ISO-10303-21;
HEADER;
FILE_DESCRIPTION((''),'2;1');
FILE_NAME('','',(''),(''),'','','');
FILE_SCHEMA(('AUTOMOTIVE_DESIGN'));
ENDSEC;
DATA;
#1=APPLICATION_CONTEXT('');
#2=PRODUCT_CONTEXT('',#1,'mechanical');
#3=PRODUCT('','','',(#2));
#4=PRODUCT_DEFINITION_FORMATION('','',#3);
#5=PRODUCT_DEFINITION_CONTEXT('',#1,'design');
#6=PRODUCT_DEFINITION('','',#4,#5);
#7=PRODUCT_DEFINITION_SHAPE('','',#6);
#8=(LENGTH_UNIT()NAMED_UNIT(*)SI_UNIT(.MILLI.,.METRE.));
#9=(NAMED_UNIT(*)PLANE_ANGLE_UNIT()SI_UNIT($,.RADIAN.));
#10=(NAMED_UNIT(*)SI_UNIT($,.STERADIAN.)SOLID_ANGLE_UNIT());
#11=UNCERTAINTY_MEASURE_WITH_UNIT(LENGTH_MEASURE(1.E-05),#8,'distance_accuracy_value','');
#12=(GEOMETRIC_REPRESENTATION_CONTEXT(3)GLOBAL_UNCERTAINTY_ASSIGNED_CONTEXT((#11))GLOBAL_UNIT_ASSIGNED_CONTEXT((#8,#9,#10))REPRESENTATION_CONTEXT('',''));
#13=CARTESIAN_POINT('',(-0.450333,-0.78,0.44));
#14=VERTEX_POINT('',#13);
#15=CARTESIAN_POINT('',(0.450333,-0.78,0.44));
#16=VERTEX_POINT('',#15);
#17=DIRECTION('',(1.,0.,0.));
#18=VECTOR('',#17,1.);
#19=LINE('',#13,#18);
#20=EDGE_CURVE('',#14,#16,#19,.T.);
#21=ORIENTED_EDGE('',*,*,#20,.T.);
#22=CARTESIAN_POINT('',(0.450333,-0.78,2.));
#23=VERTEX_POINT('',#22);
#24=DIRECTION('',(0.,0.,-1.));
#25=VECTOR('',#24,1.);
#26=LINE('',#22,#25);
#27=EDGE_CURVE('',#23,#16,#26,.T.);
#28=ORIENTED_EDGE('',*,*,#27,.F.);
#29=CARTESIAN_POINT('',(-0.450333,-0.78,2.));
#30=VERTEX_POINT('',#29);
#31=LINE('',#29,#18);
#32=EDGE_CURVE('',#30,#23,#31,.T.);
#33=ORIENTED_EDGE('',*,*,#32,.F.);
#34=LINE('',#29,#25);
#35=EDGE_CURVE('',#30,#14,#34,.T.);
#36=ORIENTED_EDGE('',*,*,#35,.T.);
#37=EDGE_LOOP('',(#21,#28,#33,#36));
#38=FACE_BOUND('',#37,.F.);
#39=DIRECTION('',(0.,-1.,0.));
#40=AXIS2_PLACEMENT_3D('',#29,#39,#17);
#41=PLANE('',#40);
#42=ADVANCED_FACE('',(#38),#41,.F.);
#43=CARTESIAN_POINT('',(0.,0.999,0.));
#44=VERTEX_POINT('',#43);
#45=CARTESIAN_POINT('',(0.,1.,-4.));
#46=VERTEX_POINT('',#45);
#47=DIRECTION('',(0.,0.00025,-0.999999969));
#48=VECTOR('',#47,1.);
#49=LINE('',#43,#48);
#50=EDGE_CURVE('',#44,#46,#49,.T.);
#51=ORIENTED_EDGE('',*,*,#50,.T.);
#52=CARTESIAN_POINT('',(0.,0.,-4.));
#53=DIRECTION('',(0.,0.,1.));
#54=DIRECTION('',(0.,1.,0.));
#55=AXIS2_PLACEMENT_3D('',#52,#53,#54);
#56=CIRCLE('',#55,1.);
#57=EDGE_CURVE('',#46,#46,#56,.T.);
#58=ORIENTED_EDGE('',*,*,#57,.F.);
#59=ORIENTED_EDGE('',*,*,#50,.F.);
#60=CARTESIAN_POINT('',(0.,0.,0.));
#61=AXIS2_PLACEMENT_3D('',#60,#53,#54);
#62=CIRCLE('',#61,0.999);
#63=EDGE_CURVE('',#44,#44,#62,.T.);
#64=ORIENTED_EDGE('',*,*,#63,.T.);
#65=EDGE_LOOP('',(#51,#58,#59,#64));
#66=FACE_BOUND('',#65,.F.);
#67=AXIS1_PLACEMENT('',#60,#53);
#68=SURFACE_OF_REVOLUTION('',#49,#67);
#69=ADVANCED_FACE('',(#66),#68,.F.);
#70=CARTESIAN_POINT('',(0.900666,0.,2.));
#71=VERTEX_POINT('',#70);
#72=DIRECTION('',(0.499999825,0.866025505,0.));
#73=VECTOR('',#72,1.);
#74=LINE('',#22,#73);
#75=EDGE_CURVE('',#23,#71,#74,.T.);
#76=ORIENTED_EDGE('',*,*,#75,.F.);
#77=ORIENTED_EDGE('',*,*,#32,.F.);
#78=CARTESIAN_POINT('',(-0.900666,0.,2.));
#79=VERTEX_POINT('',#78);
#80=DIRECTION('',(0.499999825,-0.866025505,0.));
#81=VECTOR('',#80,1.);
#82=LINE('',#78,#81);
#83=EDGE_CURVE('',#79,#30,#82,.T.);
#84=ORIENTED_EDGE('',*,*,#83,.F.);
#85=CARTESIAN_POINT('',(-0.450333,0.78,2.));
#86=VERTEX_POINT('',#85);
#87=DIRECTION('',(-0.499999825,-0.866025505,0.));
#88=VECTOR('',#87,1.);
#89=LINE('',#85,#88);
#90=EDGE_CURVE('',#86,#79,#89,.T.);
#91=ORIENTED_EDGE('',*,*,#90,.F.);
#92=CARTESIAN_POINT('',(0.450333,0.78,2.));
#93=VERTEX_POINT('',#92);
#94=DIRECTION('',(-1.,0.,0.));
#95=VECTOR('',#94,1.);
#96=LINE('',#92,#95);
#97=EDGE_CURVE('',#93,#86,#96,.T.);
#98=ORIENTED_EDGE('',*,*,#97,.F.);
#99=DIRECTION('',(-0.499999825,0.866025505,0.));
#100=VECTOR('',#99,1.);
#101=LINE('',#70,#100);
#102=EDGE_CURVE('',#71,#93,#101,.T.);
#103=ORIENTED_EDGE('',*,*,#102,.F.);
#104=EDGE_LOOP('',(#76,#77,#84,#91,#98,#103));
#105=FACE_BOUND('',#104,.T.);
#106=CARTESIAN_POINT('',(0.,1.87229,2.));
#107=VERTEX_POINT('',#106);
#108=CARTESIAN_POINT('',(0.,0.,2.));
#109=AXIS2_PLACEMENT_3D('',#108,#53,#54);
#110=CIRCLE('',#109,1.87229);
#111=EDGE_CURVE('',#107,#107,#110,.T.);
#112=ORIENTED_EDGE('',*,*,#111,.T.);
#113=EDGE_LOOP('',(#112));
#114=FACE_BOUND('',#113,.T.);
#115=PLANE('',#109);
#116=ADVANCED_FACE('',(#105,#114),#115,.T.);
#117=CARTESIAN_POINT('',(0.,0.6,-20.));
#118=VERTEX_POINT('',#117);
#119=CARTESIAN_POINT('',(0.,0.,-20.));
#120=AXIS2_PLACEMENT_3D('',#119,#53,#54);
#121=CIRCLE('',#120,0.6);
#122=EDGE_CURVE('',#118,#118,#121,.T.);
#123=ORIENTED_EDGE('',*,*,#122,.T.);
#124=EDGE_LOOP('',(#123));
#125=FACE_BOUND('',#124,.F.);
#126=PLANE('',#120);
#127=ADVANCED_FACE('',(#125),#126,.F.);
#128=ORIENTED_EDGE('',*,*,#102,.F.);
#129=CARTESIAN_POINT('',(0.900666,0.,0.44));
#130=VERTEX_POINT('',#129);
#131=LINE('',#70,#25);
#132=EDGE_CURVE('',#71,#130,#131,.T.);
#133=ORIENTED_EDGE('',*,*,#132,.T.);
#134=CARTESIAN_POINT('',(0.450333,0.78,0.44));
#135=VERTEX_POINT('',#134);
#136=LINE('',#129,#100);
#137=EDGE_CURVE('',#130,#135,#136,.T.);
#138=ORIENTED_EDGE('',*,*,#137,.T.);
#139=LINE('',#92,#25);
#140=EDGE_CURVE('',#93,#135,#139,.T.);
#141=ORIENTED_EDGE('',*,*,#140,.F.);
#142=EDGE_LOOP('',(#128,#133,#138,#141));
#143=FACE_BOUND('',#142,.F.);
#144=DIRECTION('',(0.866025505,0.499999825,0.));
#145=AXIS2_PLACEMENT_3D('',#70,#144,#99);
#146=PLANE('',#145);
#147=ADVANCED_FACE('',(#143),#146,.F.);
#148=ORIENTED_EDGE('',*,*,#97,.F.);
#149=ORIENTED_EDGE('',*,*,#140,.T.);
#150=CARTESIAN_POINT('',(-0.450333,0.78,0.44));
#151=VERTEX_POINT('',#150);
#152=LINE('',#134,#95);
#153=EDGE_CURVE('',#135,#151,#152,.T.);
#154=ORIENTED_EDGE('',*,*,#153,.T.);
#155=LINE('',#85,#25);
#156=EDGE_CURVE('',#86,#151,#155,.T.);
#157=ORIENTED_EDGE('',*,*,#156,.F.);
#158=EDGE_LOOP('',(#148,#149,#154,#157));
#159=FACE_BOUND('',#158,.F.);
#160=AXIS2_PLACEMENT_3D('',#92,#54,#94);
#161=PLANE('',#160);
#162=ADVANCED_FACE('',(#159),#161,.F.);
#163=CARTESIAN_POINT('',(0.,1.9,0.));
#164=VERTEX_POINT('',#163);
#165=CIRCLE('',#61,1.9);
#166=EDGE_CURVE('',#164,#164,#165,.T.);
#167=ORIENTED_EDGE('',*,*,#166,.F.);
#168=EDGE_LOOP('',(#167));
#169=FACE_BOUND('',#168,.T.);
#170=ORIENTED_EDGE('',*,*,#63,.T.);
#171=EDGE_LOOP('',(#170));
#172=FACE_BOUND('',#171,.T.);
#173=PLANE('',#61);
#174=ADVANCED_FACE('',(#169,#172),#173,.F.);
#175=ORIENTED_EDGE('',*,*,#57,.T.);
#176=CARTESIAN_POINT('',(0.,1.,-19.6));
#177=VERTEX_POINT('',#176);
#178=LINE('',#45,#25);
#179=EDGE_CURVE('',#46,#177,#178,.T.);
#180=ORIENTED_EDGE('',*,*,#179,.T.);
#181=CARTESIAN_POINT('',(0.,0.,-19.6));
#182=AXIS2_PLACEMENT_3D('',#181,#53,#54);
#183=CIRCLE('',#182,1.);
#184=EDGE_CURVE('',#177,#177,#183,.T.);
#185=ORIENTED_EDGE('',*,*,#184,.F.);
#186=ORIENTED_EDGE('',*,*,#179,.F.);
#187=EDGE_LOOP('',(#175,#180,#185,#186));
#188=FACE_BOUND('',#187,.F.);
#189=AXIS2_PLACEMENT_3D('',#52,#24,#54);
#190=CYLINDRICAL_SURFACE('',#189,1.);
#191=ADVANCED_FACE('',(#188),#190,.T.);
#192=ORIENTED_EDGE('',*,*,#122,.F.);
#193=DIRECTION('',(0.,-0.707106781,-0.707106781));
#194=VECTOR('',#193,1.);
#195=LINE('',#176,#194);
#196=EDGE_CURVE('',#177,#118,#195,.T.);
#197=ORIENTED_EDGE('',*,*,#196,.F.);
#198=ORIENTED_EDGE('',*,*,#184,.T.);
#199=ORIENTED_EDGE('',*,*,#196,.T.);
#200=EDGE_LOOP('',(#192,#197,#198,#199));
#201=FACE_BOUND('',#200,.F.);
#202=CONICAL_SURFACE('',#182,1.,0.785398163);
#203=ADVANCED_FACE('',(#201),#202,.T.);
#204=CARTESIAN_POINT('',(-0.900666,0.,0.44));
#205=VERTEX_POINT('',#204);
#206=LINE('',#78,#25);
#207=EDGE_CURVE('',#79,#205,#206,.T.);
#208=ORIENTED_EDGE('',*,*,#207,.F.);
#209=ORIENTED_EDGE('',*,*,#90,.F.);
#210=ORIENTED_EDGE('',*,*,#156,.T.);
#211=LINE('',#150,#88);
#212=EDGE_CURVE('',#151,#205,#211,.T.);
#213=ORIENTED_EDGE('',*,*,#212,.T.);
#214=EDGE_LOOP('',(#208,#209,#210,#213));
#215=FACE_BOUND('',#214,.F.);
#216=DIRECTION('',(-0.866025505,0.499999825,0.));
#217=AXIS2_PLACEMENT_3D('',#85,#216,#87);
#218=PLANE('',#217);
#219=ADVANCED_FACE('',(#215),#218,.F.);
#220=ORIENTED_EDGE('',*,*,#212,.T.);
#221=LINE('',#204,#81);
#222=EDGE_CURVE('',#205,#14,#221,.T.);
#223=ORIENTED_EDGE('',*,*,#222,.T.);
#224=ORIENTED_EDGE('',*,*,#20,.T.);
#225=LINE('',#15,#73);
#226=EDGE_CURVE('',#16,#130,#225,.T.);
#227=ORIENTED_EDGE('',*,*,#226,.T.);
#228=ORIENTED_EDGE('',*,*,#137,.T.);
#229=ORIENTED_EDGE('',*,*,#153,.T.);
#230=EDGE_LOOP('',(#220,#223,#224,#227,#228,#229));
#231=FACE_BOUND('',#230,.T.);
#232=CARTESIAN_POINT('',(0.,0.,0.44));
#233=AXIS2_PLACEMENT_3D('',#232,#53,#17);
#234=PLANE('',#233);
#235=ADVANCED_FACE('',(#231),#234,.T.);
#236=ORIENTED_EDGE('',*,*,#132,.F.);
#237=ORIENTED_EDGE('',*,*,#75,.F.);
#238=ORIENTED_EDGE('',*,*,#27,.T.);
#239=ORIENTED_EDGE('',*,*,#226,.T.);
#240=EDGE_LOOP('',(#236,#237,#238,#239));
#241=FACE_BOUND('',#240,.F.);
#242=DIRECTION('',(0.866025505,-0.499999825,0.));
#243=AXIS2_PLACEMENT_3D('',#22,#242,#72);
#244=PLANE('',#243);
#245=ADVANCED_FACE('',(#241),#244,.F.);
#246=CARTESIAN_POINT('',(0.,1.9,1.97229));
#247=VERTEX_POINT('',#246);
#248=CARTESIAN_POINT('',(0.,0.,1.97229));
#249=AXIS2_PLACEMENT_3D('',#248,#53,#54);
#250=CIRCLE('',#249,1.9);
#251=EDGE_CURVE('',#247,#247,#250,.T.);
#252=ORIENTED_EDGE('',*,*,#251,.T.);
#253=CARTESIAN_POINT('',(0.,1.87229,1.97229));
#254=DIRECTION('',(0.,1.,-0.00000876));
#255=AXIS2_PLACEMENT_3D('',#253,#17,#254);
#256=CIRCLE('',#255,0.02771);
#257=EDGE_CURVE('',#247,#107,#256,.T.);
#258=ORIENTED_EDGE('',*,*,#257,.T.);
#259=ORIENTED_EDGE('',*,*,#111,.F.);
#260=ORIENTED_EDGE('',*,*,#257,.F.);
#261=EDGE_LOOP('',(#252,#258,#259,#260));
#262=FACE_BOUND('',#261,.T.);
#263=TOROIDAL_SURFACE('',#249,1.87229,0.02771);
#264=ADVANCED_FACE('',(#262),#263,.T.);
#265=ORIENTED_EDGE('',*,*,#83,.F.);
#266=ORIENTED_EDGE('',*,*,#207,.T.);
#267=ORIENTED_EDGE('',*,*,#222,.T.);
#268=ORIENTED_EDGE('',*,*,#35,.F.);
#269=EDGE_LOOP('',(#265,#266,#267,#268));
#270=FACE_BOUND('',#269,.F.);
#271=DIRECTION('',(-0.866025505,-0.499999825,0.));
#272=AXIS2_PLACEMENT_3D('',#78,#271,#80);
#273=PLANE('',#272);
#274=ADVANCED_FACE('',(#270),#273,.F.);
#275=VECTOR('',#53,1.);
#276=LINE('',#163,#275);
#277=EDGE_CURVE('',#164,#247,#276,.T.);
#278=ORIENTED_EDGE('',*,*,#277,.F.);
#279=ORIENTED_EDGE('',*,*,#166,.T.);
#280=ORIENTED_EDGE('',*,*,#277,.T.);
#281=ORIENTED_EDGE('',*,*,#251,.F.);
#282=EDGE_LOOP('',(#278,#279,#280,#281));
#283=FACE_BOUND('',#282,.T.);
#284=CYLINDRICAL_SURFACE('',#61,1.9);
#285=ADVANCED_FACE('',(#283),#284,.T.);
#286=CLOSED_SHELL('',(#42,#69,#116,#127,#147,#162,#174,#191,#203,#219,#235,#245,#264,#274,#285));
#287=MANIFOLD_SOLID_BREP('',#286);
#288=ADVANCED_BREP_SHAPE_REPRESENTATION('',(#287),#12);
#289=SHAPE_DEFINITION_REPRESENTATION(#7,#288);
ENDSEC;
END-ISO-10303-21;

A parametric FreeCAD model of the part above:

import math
import FreeCAD as App
import Part
import Sketcher
from FreeCAD import Vector
Q = App.Units.Quantity

doc = App.newDocument("Part")
body = doc.addObject("PartDesign::Body", "Body")

# Sketch on YZ plane
sketch1 = body.newObject("Sketcher::SketchObject", "Sketch")
sketch1.AttachmentSupport = (doc.getObject("YZ_Plane"), [""])
sketch1.MapMode = "FlatFace"
sketch1.addGeometry(Part.LineSegment(Vector(0.999, 0, 0), Vector(1.9, 0, 0)), False)
sketch1.addGeometry(Part.LineSegment(Vector(1.9, 0, 0), Vector(1.9, 1.972, 0)), False)
sketch1.addGeometry(Part.ArcOfCircle(Part.Circle(Vector(1.872, 1.972, 0), Vector(0, 0, 1), 0.028), math.radians(0), math.radians(90)), False)
sketch1.addGeometry(Part.LineSegment(Vector(1.872, 2, 0), Vector(0, 2, 0)), False)
sketch1.addGeometry(Part.LineSegment(Vector(0, 2, 0), Vector(0, -20, 0)), False)
sketch1.addGeometry(Part.LineSegment(Vector(0, -20, 0), Vector(0.6, -20, 0)), False)
sketch1.addGeometry(Part.LineSegment(Vector(0.6, -20, 0), Vector(1, -19.6, 0)), False)
sketch1.addGeometry(Part.LineSegment(Vector(1, -19.6, 0), Vector(1, -4, 0)), False)
sketch1.addGeometry(Part.LineSegment(Vector(1, -4, 0), Vector(0.999, 0, 0)), False)
sketch1.addConstraint(Sketcher.Constraint("Coincident", 0, 2, 1, 1))
sketch1.addConstraint(Sketcher.Constraint("Coincident", 1, 2, 2, 1))
sketch1.addConstraint(Sketcher.Constraint("Coincident", 2, 2, 3, 1))
sketch1.addConstraint(Sketcher.Constraint("Coincident", 3, 2, 4, 1))
sketch1.addConstraint(Sketcher.Constraint("Coincident", 4, 2, 5, 1))
sketch1.addConstraint(Sketcher.Constraint("Coincident", 5, 2, 6, 1))
sketch1.addConstraint(Sketcher.Constraint("Coincident", 6, 2, 7, 1))
sketch1.addConstraint(Sketcher.Constraint("Coincident", 7, 2, 8, 1))
sketch1.addConstraint(Sketcher.Constraint("Coincident", 8, 2, 0, 1))
sketch1.addConstraint(Sketcher.Constraint("Horizontal", 0))
sketch1.addConstraint(Sketcher.Constraint("Vertical", 1))
sketch1.addConstraint(Sketcher.Constraint("Horizontal", 3))
sketch1.addConstraint(Sketcher.Constraint("Vertical", 4))
sketch1.addConstraint(Sketcher.Constraint("Horizontal", 5))
sketch1.addConstraint(Sketcher.Constraint("Vertical", 7))
sketch1.addConstraint(Sketcher.Constraint("PointOnObject", 0, 2, -1))
sketch1.addConstraint(Sketcher.Constraint("PointOnObject", 3, 2, -2))
sketch1.addConstraint(Sketcher.Constraint("Horizontal", 2, 3, 1, 2))
sketch1.addConstraint(Sketcher.Constraint("DistanceY", 4, 2, 4, 1, 22.0))
sketch1.addConstraint(Sketcher.Constraint("Angle", 6, Q("45 deg")))
sketch1.addConstraint(Sketcher.Constraint("Distance", 8, 4.0))
sketch1.addConstraint(Sketcher.Constraint("DistanceX", 5, 1, 5, 2, 0.6))
sketch1.addConstraint(Sketcher.Constraint("DistanceY", 7, 1, 7, 2, 15.6))
sketch1.addConstraint(Sketcher.Constraint("DistanceY", -1, 1, 2, 2, 2.0))
sketch1.addConstraint(Sketcher.Constraint("DistanceX", -1, 1, 0, 2, 1.9))
sketch1.addConstraint(Sketcher.Constraint("DistanceX", 0, 1, 0, 2, 0.901))
sketch1.addConstraint(Sketcher.Constraint("Radius", 2, 0.02771))
sketch1.addConstraint(Sketcher.Constraint("DistanceX", 3, 2, 3, 1, 1.87229))
revolution = body.newObject("PartDesign::Revolution", "Revolution")
revolution.Profile = sketch1
revolution.ReferenceAxis = (sketch1, ["V_Axis"])
revolution.Angle = 360

# Sketch on XY plane
sketch2 = body.newObject("Sketcher::SketchObject", "Sketch001")
sketch2.AttachmentSupport = (doc.getObject("XY_Plane"), [""])
sketch2.MapMode = "FlatFace"
sketch2.AttachmentOffset = App.Placement(Vector(0, 0, 2), App.Rotation())
sketch2.addGeometry(Part.LineSegment(Vector(0.9, 0, 0), Vector(0.5, 0.8, 0)), False)
sketch2.addGeometry(Part.LineSegment(Vector(0.5, 0.8, 0), Vector(-0.5, 0.8, 0)), False)
sketch2.addGeometry(Part.LineSegment(Vector(-0.5, 0.8, 0), Vector(-0.9, 0, 0)), False)
sketch2.addGeometry(Part.LineSegment(Vector(-0.9, 0, 0), Vector(-0.5, -0.8, 0)), False)
sketch2.addGeometry(Part.LineSegment(Vector(-0.5, -0.8, 0), Vector(0.5, -0.8, 0)), False)
sketch2.addGeometry(Part.LineSegment(Vector(0.5, -0.8, 0), Vector(0.9, 0, 0)), False)
sketch2.addConstraint(Sketcher.Constraint("Coincident", 0, 2, 1, 1))
sketch2.addConstraint(Sketcher.Constraint("Coincident", 1, 2, 2, 1))
sketch2.addConstraint(Sketcher.Constraint("Coincident", 2, 2, 3, 1))
sketch2.addConstraint(Sketcher.Constraint("Coincident", 3, 2, 4, 1))
sketch2.addConstraint(Sketcher.Constraint("Coincident", 4, 2, 5, 1))
sketch2.addConstraint(Sketcher.Constraint("Coincident", 5, 2, 0, 1))
sketch2.addConstraint(Sketcher.Constraint("Horizontal", 1))
sketch2.addConstraint(Sketcher.Constraint("Horizontal", 4))
sketch2.addConstraint(Sketcher.Constraint("Symmetric", 0, 2, 3, 2, -1, 1))
sketch2.addConstraint(Sketcher.Constraint("Symmetric", 2, 2, 5, 2, -1, 1))
sketch2.addConstraint(Sketcher.Constraint("PointOnObject", 2, 2, -1))
sketch2.addConstraint(Sketcher.Constraint("Parallel", 2, 5))
sketch2.addConstraint(Sketcher.Constraint("Vertical", 1, 2, 3, 2))
sketch2.addConstraint(Sketcher.Constraint("Angle", 0, Q("119.999988 deg")))
sketch2.addConstraint(Sketcher.Constraint("DistanceY", -1, 1, 0, 2, 0.78))
sketch2.addConstraint(Sketcher.Constraint("DistanceX", 2, 2, 0, 2, 1.350999))
pocket1 = body.newObject("PartDesign::Pocket", "Pocket")
pocket1.Profile = sketch2
pocket1.Length = 1.56

doc.recompute()
